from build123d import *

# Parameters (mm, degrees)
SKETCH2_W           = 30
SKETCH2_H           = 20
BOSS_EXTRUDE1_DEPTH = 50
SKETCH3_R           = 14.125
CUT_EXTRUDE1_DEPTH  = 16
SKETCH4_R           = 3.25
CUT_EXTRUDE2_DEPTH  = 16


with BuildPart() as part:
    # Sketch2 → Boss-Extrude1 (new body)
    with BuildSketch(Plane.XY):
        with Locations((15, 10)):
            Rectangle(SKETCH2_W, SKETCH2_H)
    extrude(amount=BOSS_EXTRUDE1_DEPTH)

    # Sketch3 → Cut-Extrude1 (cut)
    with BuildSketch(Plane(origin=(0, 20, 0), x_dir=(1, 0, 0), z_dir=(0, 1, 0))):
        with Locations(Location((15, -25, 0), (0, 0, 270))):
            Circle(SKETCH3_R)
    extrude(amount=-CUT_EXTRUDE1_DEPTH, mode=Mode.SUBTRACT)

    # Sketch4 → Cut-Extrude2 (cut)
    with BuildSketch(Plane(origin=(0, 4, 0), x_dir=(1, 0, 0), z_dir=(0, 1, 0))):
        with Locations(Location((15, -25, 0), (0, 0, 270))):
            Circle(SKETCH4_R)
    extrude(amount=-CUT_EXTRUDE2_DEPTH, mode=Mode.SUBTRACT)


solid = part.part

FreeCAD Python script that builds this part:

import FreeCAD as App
import Part
import Sketcher

V = App.Vector
Q = App.Units.Quantity

doc = App.newDocument("Part")
body = doc.addObject("PartDesign::Body", "Body")

# Sketch on XY plane
sketch1 = body.newObject("Sketcher::SketchObject", "Sketch")
sketch1.AttachmentSupport = (doc.getObject("XY_Plane"), [""])
sketch1.MapMode = "FlatFace"
sketch1.addGeometry([
    Part.LineSegment(V(0, 20, 0), V(0, 0, 0)),
    Part.LineSegment(V(0, 0, 0), V(30, 0, 0)),
    Part.LineSegment(V(30, 0, 0), V(30, 20, 0)),
    Part.LineSegment(V(30, 20, 0), V(0, 20, 0)),
], False)
sketch1.addConstraint([
    Sketcher.Constraint("Coincident", 0, 2, 1, 1),
    Sketcher.Constraint("Coincident", 1, 2, 2, 1),
    Sketcher.Constraint("Coincident", 2, 2, 3, 1),
    Sketcher.Constraint("Coincident", 3, 2, 0, 1),
    Sketcher.Constraint("Vertical", 0),
    Sketcher.Constraint("Horizontal", 1),
    Sketcher.Constraint("Vertical", 2),
    Sketcher.Constraint("Horizontal", 3),
    Sketcher.Constraint("Coincident", 0, 2, -1, 1),
    Sketcher.Constraint("DistanceX", 1, 1, 1, 2, Q("30 mm")),
    Sketcher.Constraint("DistanceY", 0, 2, 0, 1, Q("20 mm")),
])
pad1 = body.newObject("PartDesign::Pad", "Pad")
pad1.Profile = sketch1
pad1.Length = 50

# Sketch on XZ plane
sketch2 = body.newObject("Sketcher::SketchObject", "Sketch001")
sketch2.AttachmentSupport = (doc.getObject("XZ_Plane"), [""])
sketch2.MapMode = "FlatFace"
sketch2.AttachmentOffset = App.Placement(V(0, 0, -20), App.Rotation())
sketch2.addGeometry(Part.Circle(V(15, 25, 0), V(0, 0, 1), 14.125), False)
sketch2.addConstraint([
    Sketcher.Constraint("Diameter", 0, Q("28.25 mm")),
    Sketcher.Constraint("DistanceX", -1, 1, 0, 3, Q("15 mm")),
    Sketcher.Constraint("DistanceY", -1, 1, 0, 3, Q("25 mm")),
])
pocket1 = body.newObject("PartDesign::Pocket", "Pocket")
pocket1.Profile = sketch2
pocket1.Length = 16
pocket1.Reversed = True

# Sketch on XZ plane
sketch3 = body.newObject("Sketcher::SketchObject", "Sketch002")
sketch3.AttachmentSupport = (doc.getObject("XZ_Plane"), [""])
sketch3.MapMode = "FlatFace"
sketch3.AttachmentOffset = App.Placement(V(0, 0, -4), App.Rotation())
sketch3.addGeometry(Part.Circle(V(15, 25, 0), V(0, 0, 1), 3.25), False)
sketch3.addConstraint([
    Sketcher.Constraint("Diameter", 0, Q("6.5 mm")),
    Sketcher.Constraint("DistanceX", -1, 1, 0, 3, Q("15 mm")),
    Sketcher.Constraint("DistanceY", -1, 1, 0, 3, Q("25 mm")),
])
pocket2 = body.newObject("PartDesign::Pocket", "Pocket001")
pocket2.Profile = sketch3
pocket2.Length = 16
pocket2.Reversed = True

doc.recompute()
